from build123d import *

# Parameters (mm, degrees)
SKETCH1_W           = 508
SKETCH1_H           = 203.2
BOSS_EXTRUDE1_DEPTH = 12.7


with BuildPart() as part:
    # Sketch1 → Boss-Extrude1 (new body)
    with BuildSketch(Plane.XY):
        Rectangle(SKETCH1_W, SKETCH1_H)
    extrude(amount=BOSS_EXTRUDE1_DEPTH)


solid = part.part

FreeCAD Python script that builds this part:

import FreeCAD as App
import Part
import Sketcher
from FreeCAD import Vector
Q = App.Units.Quantity


def add_polygon(sketch, points):
    """Adds a closed chain of lines whose ends are joined by coincident constraints."""
    first, n = sketch.GeometryCount, len(points)
    for a, b in zip(points, points[1:] + points[:1]):
        sketch.addGeometry(Part.LineSegment(App.Vector(*a, 0), App.Vector(*b, 0)), False)
    for i in range(n):
        sketch.addConstraint(Sketcher.Constraint("Coincident", first + i, 2, first + (i + 1) % n, 1))

doc = App.newDocument("Part")
body = doc.addObject("PartDesign::Body", "Body")

# Sketch on XY plane
sketch1 = body.newObject("Sketcher::SketchObject", "Sketch")
sketch1.AttachmentSupport = (doc.getObject("XY_Plane"), [""])
sketch1.MapMode = "FlatFace"
add_polygon(sketch1, [(-254, 101.6), (-254, -101.6), (254, -101.6), (254, 101.6)])  # lines 0-3
sketch1.addConstraint([
    Sketcher.Constraint("Vertical", 0),
    Sketcher.Constraint("Horizontal", 1),
    Sketcher.Constraint("Vertical", 2),
    Sketcher.Constraint("Horizontal", 3),
    Sketcher.Constraint("Symmetric", 0, 2, 2, 2, -1, 1),
    Sketcher.Constraint("DistanceX", 1, 1, 1, 2, Q("20 in")),
    Sketcher.Constraint("DistanceY", 0, 2, 0, 1, Q("8 in")),
])
pad1 = body.newObject("PartDesign::Pad", "Pad")
pad1.Profile = sketch1
pad1.Length = Q("0.5 in")

doc.recompute()
